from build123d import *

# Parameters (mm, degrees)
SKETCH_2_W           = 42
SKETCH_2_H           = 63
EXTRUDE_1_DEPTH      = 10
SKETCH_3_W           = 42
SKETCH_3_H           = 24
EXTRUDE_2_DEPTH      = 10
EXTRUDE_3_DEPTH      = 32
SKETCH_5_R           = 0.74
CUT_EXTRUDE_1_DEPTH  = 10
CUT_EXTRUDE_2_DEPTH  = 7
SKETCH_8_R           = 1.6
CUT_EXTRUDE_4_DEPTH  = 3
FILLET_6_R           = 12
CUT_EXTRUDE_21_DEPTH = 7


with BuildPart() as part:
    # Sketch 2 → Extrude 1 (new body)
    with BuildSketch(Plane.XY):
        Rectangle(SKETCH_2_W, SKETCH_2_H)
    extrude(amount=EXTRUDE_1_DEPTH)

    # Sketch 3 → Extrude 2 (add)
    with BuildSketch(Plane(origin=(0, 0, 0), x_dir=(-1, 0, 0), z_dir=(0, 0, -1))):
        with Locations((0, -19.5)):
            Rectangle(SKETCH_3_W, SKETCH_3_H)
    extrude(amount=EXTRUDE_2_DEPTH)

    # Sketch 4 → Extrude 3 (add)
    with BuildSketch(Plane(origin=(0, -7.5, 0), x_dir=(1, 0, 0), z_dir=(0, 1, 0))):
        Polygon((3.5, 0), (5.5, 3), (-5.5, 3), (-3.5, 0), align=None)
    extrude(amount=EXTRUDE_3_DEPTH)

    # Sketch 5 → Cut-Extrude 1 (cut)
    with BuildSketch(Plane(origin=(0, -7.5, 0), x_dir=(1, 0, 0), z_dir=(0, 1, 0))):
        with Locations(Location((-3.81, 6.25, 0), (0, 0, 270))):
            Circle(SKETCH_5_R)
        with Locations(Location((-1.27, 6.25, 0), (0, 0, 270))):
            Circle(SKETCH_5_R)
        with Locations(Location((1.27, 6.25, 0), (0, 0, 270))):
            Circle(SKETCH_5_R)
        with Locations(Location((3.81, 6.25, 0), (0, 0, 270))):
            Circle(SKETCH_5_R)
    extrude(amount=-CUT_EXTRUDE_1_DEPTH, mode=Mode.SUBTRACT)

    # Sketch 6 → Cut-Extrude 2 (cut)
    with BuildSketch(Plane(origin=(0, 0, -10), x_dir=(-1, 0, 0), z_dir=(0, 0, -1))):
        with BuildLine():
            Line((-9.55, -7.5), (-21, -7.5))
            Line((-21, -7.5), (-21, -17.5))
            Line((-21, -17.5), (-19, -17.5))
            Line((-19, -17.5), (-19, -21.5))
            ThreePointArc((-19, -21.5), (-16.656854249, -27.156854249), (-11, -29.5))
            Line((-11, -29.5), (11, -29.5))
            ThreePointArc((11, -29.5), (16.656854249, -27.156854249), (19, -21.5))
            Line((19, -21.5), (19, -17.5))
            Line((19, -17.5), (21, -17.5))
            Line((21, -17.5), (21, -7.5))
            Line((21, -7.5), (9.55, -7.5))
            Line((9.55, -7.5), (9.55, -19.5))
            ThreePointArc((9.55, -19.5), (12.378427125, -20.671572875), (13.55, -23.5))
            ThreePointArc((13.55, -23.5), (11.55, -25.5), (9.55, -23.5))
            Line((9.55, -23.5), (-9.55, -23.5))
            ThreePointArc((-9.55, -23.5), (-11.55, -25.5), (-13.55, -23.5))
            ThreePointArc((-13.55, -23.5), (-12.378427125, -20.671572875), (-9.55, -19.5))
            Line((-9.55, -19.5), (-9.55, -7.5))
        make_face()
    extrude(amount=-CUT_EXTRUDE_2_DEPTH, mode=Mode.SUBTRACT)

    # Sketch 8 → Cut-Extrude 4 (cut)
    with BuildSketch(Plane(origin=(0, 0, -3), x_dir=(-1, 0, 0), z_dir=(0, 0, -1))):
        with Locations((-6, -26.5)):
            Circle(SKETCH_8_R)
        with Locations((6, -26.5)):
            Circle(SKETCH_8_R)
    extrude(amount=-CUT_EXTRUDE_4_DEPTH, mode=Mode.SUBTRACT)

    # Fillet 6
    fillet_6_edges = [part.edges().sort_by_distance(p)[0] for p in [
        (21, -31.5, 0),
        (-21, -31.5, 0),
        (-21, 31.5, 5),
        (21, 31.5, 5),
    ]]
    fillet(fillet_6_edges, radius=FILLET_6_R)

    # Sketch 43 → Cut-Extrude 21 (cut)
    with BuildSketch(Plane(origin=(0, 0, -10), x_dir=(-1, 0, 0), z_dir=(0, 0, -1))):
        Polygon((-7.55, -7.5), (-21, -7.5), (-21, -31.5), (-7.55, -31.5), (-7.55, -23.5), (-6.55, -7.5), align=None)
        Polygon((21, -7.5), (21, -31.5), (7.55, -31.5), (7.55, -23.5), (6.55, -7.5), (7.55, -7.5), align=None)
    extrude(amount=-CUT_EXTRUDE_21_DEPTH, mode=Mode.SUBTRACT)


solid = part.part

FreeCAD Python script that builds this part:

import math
import FreeCAD as App
import Part
import Sketcher

V = App.Vector


def edges_at(feature, points):
    """Names of the edges that pass closest to the given points."""
    edges = feature.Shape.Edges
    near = lambda p: min(range(len(edges)), key=lambda i: edges[i].distToShape(Part.Vertex(*p))[0])
    return sorted({f"Edge{near(p) + 1}" for p in points})


def add_polygon(sketch, points):
    """Adds a closed chain of lines whose ends are joined by coincident constraints."""
    first, n = sketch.GeometryCount, len(points)
    for a, b in zip(points, points[1:] + points[:1]):
        sketch.addGeometry(Part.LineSegment(App.Vector(*a, 0), App.Vector(*b, 0)), False)
    for i in range(n):
        sketch.addConstraint(Sketcher.Constraint("Coincident", first + i, 2, first + (i + 1) % n, 1))

doc = App.newDocument("Part")
params = doc.addObject("Spreadsheet::Sheet", "Params")
for row, (alias, value) in enumerate([
    ("sketch1_width", "42 mm"),
    ("sketch1_height", "63 mm"),
    ("pad1_length", "10 mm"),
    ("sketch2_width", "42 mm"),
    ("sketch2_height", "24 mm"),
    ("pad2_length", "10 mm"),
    ("sketch3_width", "11 mm"),
    ("sketch3_width2", "7 mm"),
    ("pad3_length", "32 mm"),
    ("sketch4_diameter", "1.48 mm"),
    ("pocket1_length", "10 mm"),
    ("sketch5_radius", "8 mm"),
    ("sketch5_radius2", "4 mm"),
    ("sketch5_width", "2 mm"),
    ("sketch5_width2", "22 mm"),
    ("sketch5_height", "10 mm"),
    ("pocket2_length", "7 mm"),
    ("sketch6_diameter", "3.2 mm"),
    ("pocket3_length", "3 mm"),
    ("fillet_radius", "12 mm"),
    ("sketch7_height", "24 mm"),
    ("sketch7_height2", "8 mm"),
    ("sketch7_width", "13.45 mm"),
    ("pocket4_length", "7 mm"),
], start=1):
    params.set(f"A{row}", alias)
    params.set(f"B{row}", "=" + value)
    params.setAlias(f"B{row}", alias)

body = doc.addObject("PartDesign::Body", "Body")

sketch1 = body.newObject("Sketcher::SketchObject", "Sketch")
sketch1.AttachmentSupport = (doc.getObject("XY_Plane"), [""])
sketch1.MapMode = "FlatFace"
add_polygon(sketch1, [(-21, 32), (-21, -32), (21, -32), (21, 32)])
sketch1.addConstraint(Sketcher.Constraint("Vertical", 0))
sketch1.addConstraint(Sketcher.Constraint("Horizontal", 1))
sketch1.addConstraint(Sketcher.Constraint("Vertical", 2))
sketch1.addConstraint(Sketcher.Constraint("Horizontal", 3))
sketch1.addConstraint(Sketcher.Constraint("Symmetric", 0, 2, 2, 2, -1, 1))
sketch1.addConstraint(Sketcher.Constraint("DistanceX", 1, 1, 1, 2, 42.0))
sketch1.addConstraint(Sketcher.Constraint("DistanceY", 0, 2, 0, 1, 63.0))
sketch1.setExpression("Constraints[9]", "Params.sketch1_width")
sketch1.setExpression("Constraints[10]", "Params.sketch1_height")
pad1 = body.newObject("PartDesign::Pad", "Pad")
pad1.Profile = sketch1
pad1.setExpression("Length", "Params.pad1_length")

sketch2 = body.newObject("Sketcher::SketchObject", "Sketch001")
sketch2.AttachmentSupport = (doc.getObject("XY_Plane"), [""])
sketch2.MapMode = "FlatFace"
add_polygon(sketch2, [(21, -8), (21, -32), (-21, -32), (-21, -8)])
sketch2.addConstraint(Sketcher.Constraint("Vertical", 0))
sketch2.addConstraint(Sketcher.Constraint("Horizontal", 1))
sketch2.addConstraint(Sketcher.Constraint("Vertical", 2))
sketch2.addConstraint(Sketcher.Constraint("Horizontal", 3))
sketch2.addConstraint(Sketcher.Constraint("DistanceX", 1, 2, 1, 1, 42.0))
sketch2.addConstraint(Sketcher.Constraint("DistanceY", 0, 2, 0, 1, 24.0))
sketch2.addConstraint(Sketcher.Constraint("DistanceX", -1, 1, 0, 2, 21.0))
sketch2.addConstraint(Sketcher.Constraint("DistanceY", 0, 2, -1, 1, 31.5))
sketch2.setExpression("Constraints[8]", "Params.sketch2_width")
sketch2.setExpression("Constraints[9]", "Params.sketch2_height")
pad2 = body.newObject("PartDesign::Pad", "Pad001")
pad2.Profile = sketch2
pad2.setExpression("Length", "Params.pad2_length")
pad2.Reversed = True

sketch3 = body.newObject("Sketcher::SketchObject", "Sketch002")
sketch3.AttachmentSupport = (doc.getObject("XZ_Plane"), [""])
sketch3.MapMode = "FlatFace"
sketch3.AttachmentOffset = App.Placement(V(0, 0, 7.5), App.Rotation())
add_polygon(sketch3, [(3.5, 0), (5.5, -3), (-5.5, -3), (-3.5, 0)])
sketch3.addConstraint(Sketcher.Constraint("Horizontal", 1))
sketch3.addConstraint(Sketcher.Constraint("Horizontal", 3))
sketch3.addConstraint(Sketcher.Constraint("Symmetric", 2, 2, 3, 2, -1, 1))
sketch3.addConstraint(Sketcher.Constraint("Equal", 0, 2))
sketch3.addConstraint(Sketcher.Constraint("DistanceX", 1, 2, 1, 1, 11.0))
sketch3.addConstraint(Sketcher.Constraint("DistanceX", 3, 1, 3, 2, 7.0))
sketch3.addConstraint(Sketcher.Constraint("DistanceY", 0, 2, -1, 1, 3.0))
sketch3.setExpression("Constraints[8]", "Params.sketch3_width")
sketch3.setExpression("Constraints[9]", "Params.sketch3_width2")
pad3 = body.newObject("PartDesign::Pad", "Pad002")
pad3.Profile = sketch3
pad3.setExpression("Length", "Params.pad3_length")
pad3.Reversed = True

sketch4 = body.newObject("Sketcher::SketchObject", "Sketch003")
sketch4.AttachmentSupport = (doc.getObject("XZ_Plane"), [""])
sketch4.MapMode = "FlatFace"
sketch4.AttachmentOffset = App.Placement(V(0, 0, 7.5), App.Rotation())
sketch4.addGeometry(Part.Circle(V(-3.8, -6.2, 0), V(0, 0, 1), 0.7), False)
sketch4.addGeometry(Part.Circle(V(-1.3, -6.2, 0), V(0, 0, 1), 0.7), False)
sketch4.addGeometry(Part.Circle(V(1.3, -6.2, 0), V(0, 0, 1), 0.7), False)
sketch4.addGeometry(Part.Circle(V(3.8, -6.2, 0), V(0, 0, 1), 0.7), False)
sketch4.addConstraint(Sketcher.Constraint("Equal", 0, 1))
sketch4.addConstraint(Sketcher.Constraint("Equal", 1, 2))
sketch4.addConstraint(Sketcher.Constraint("Equal", 2, 3))
sketch4.addConstraint(Sketcher.Constraint("Symmetric", 1, 3, 2, 3, -2))
sketch4.addConstraint(Sketcher.Constraint("Symmetric", 0, 3, 3, 3, -2))
sketch4.addConstraint(Sketcher.Constraint("Horizontal", 0, 3, 1, 3))
sketch4.addConstraint(Sketcher.Constraint("Diameter", 0, 1.48))
sketch4.addConstraint(Sketcher.Constraint("DistanceX", 0, 3, -1, 1, 3.81))
sketch4.addConstraint(Sketcher.Constraint("DistanceY", 0, 3, -1, 1, 6.25))
sketch4.addConstraint(Sketcher.Constraint("DistanceX", 1, 3, -1, 1, 1.27))
sketch4.setExpression("Constraints[6]", "Params.sketch4_diameter")
pocket1 = body.newObject("PartDesign::Pocket", "Pocket")
pocket1.Profile = sketch4
pocket1.setExpression("Length", "Params.pocket1_length")
pocket1.Reversed = True

sketch5 = body.newObject("Sketcher::SketchObject", "Sketch004")
sketch5.AttachmentSupport = (doc.getObject("XY_Plane"), [""])
sketch5.MapMode = "FlatFace"
sketch5.AttachmentOffset = App.Placement(V(0, 0, -10), App.Rotation())
sketch5.addGeometry(Part.LineSegment(V(9.6, -7.5, 0), V(21, -7.5, 0)), False)
sketch5.addGeometry(Part.LineSegment(V(21, -7.5, 0), V(21, -17.5, 0)), False)
sketch5.addGeometry(Part.LineSegment(V(21, -17.5, 0), V(19, -17.5, 0)), False)
sketch5.addGeometry(Part.LineSegment(V(19, -17.5, 0), V(19, -21.5, 0)), False)
sketch5.addGeometry(Part.ArcOfCircle(Part.Circle(V(11, -21.5, 0), V(0, 0, 1), 8), math.radians(-90), math.radians(0)), False)
sketch5.addGeometry(Part.LineSegment(V(11, -29.5, 0), V(-11, -29.5, 0)), False)
sketch5.addGeometry(Part.ArcOfCircle(Part.Circle(V(-11, -21.5, 0), V(0, 0, 1), 8), math.radians(-180), math.radians(-90)), False)
sketch5.addGeometry(Part.LineSegment(V(-19, -21.5, 0), V(-19, -17.5, 0)), False)
sketch5.addGeometry(Part.LineSegment(V(-19, -17.5, 0), V(-21, -17.5, 0)), False)
sketch5.addGeometry(Part.LineSegment(V(-21, -17.5, 0), V(-21, -7.5, 0)), False)
sketch5.addGeometry(Part.LineSegment(V(-21, -7.5, 0), V(-9.6, -7.5, 0)), False)
sketch5.addGeometry(Part.LineSegment(V(-9.6, -7.5, 0), V(-9.6, -19.5, 0)), False)
sketch5.addGeometry(Part.ArcOfCircle(Part.Circle(V(-9.6, -23.5, 0), V(0, 0, 1), 4), math.radians(90), math.radians(180)), False)
sketch5.addGeometry(Part.ArcOfCircle(Part.Circle(V(-11.6, -23.5, 0), V(0, 0, 1), 2), math.radians(180), math.radians(360)), False)
sketch5.addGeometry(Part.LineSegment(V(-9.6, -23.5, 0), V(9.6, -23.5, 0)), False)
sketch5.addGeometry(Part.ArcOfCircle(Part.Circle(V(11.6, -23.5, 0), V(0, 0, 1), 2), math.radians(180), math.radians(360)), False)
sketch5.addGeometry(Part.ArcOfCircle(Part.Circle(V(9.6, -23.5, 0), V(0, 0, 1), 4), math.radians(0), math.radians(90)), False)
sketch5.addGeometry(Part.LineSegment(V(9.6, -19.5, 0), V(9.6, -7.5, 0)), False)
sketch5.addConstraint(Sketcher.Constraint("Coincident", 0, 2, 1, 1))
sketch5.addConstraint(Sketcher.Constraint("Coincident", 1, 2, 2, 1))
sketch5.addConstraint(Sketcher.Constraint("Coincident", 2, 2, 3, 1))
sketch5.addConstraint(Sketcher.Constraint("Tangent", 3, 2, 4, 2))
sketch5.addConstraint(Sketcher.Constraint("Tangent", 4, 1, 5, 1))
sketch5.addConstraint(Sketcher.Constraint("Tangent", 5, 2, 6, 2))
sketch5.addConstraint(Sketcher.Constraint("Tangent", 6, 1, 7, 1))
sketch5.addConstraint(Sketcher.Constraint("Coincident", 7, 2, 8, 1))
sketch5.addConstraint(Sketcher.Constraint("Coincident", 8, 2, 9, 1))
sketch5.addConstraint(Sketcher.Constraint("Coincident", 9, 2, 10, 1))
sketch5.addConstraint(Sketcher.Constraint("Coincident", 10, 2, 11, 1))
sketch5.addConstraint(Sketcher.Constraint("Coincident", 11, 2, 12, 1))
sketch5.addConstraint(Sketcher.Constraint("Tangent", 12, 2, 13, 1))
sketch5.addConstraint(Sketcher.Constraint("Coincident", 13, 2, 14, 1))
sketch5.addConstraint(Sketcher.Constraint("Coincident", 14, 2, 15, 1))
sketch5.addConstraint(Sketcher.Constraint("Tangent", 15, 2, 16, 1))
sketch5.addConstraint(Sketcher.Constraint("Coincident", 16, 2, 17, 1))
sketch5.addConstraint(Sketcher.Constraint("Coincident", 17, 2, 0, 1))
sketch5.addConstraint(Sketcher.Constraint("Horizontal", 0))
sketch5.addConstraint(Sketcher.Constraint("Vertical", 1))
sketch5.addConstraint(Sketcher.Constraint("Horizontal", 2))
sketch5.addConstraint(Sketcher.Constraint("Vertical", 3))
sketch5.addConstraint(Sketcher.Constraint("Horizontal", 5))
sketch5.addConstraint(Sketcher.Constraint("Vertical", 7))
sketch5.addConstraint(Sketcher.Constraint("Horizontal", 8))
sketch5.addConstraint(Sketcher.Constraint("Vertical", 9))
sketch5.addConstraint(Sketcher.Constraint("Horizontal", 10))
sketch5.addConstraint(Sketcher.Constraint("Vertical", 11))
sketch5.addConstraint(Sketcher.Constraint("Horizontal", 14))
sketch5.addConstraint(Sketcher.Constraint("Vertical", 17))
sketch5.addConstraint(Sketcher.Constraint("Coincident", 13, 2, 12, 3))
sketch5.addConstraint(Sketcher.Constraint("Coincident", 14, 2, 16, 3))
sketch5.addConstraint(Sketcher.Constraint("Equal", 4, 6))
sketch5.addConstraint(Sketcher.Constraint("Equal", 13, 15))
sketch5.addConstraint(Sketcher.Constraint("Symmetric", 13, 3, 15, 3, -2))
sketch5.addConstraint(Sketcher.Constraint("Symmetric", 2, 2, 7, 2, -2))
sketch5.addConstraint(Sketcher.Constraint("Symmetric", 0, 2, 9, 2, -2))
sketch5.addConstraint(Sketcher.Constraint("Horizontal", 12, 3, 13, 3))
sketch5.addConstraint(Sketcher.Constraint("Vertical", 12, 3, 10, 2))
sketch5.addConstraint(Sketcher.Constraint("Vertical", 14, 2, 16, 2))
sketch5.addConstraint(Sketcher.Constraint("Radius", 4, 8.0))
sketch5.addConstraint(Sketcher.Constraint("Radius", 12, 4.0))
sketch5.addConstraint(Sketcher.Constraint("DistanceX", 2, 2, 2, 1, 2.0))
sketch5.addConstraint(Sketcher.Constraint("DistanceX", 5, 2, 5, 1, 22.0))
sketch5.addConstraint(Sketcher.Constraint("DistanceY", 1, 2, 1, 1, 10.0))
sketch5.addConstraint(Sketcher.Constraint("DistanceY", 3, 2, 3, 1, 4.0))
sketch5.addConstraint(Sketcher.Constraint("DistanceY", 11, 2, 11, 1, 12.0))
sketch5.addConstraint(Sketcher.Constraint("DistanceX", 14, 1, 14, 2, 19.1))
sketch5.addConstraint(Sketcher.Constraint("DistanceY", 4, 3, -1, 1, 21.5))
sketch5.setExpression("Constraints[40]", "Params.sketch5_radius")
sketch5.setExpression("Constraints[41]", "Params.sketch5_radius2")
sketch5.setExpression("Constraints[42]", "Params.sketch5_width")
sketch5.setExpression("Constraints[43]", "Params.sketch5_width2")
sketch5.setExpression("Constraints[44]", "Params.sketch5_height")
pocket2 = body.newObject("PartDesign::Pocket", "Pocket001")
pocket2.Profile = sketch5
pocket2.setExpression("Length", "Params.pocket2_length")
pocket2.Reversed = True

sketch6 = body.newObject("Sketcher::SketchObject", "Sketch005")
sketch6.AttachmentSupport = (doc.getObject("XY_Plane"), [""])
sketch6.MapMode = "FlatFace"
sketch6.AttachmentOffset = App.Placement(V(0, 0, -3), App.Rotation())
sketch6.addGeometry(Part.Circle(V(6, -26.5, 0), V(0, 0, 1), 1.6), False)
sketch6.addGeometry(Part.Circle(V(-6, -26.5, 0), V(0, 0, 1), 1.6), False)
sketch6.addConstraint(Sketcher.Constraint("Equal", 0, 1))
sketch6.addConstraint(Sketcher.Constraint("Symmetric", 0, 3, 1, 3, -2))
sketch6.addConstraint(Sketcher.Constraint("Diameter", 0, 3.2))
sketch6.addConstraint(Sketcher.Constraint("DistanceX", -1, 1, 0, 3, 6.0))
sketch6.addConstraint(Sketcher.Constraint("DistanceY", 0, 3, -1, 1, 26.5))
sketch6.setExpression("Constraints[2]", "Params.sketch6_diameter")
pocket3 = body.newObject("PartDesign::Pocket", "Pocket002")
pocket3.Profile = sketch6
pocket3.setExpression("Length", "Params.pocket3_length")
pocket3.Reversed = True
doc.recompute()

fillet = body.newObject("PartDesign::Fillet", "Fillet")
fillet.Base = (pocket3, edges_at(pocket3, [
    (21, -31.5, 0),
    (-21, -31.5, 0),
    (-21, 31.5, 5),
    (21, 31.5, 5),
]))
fillet.setExpression("Radius", "Params.fillet_radius")

sketch7 = body.newObject("Sketcher::SketchObject", "Sketch006")
sketch7.AttachmentSupport = (doc.getObject("XY_Plane"), [""])
sketch7.MapMode = "FlatFace"
sketch7.AttachmentOffset = App.Placement(V(0, 0, -10), App.Rotation())
add_polygon(sketch7, [(21, -8), (21, -32), (8, -32), (8, -24), (7, -8)])
add_polygon(sketch7, [(-21, -32), (-21, -8), (-7, -8), (-8, -24), (-8, -32)])
sketch7.addConstraint(Sketcher.Constraint("Vertical", 0))
sketch7.addConstraint(Sketcher.Constraint("Horizontal", 1))
sketch7.addConstraint(Sketcher.Constraint("Vertical", 2))
sketch7.addConstraint(Sketcher.Constraint("Horizontal", 4))
sketch7.addConstraint(Sketcher.Constraint("Vertical", 5))
sketch7.addConstraint(Sketcher.Constraint("Horizontal", 6))
sketch7.addConstraint(Sketcher.Constraint("Vertical", 8))
sketch7.addConstraint(Sketcher.Constraint("Horizontal", 9))
sketch7.addConstraint(Sketcher.Constraint("Symmetric", 4, 2, 5, 2, -2))
sketch7.addConstraint(Sketcher.Constraint("Symmetric", 2, 2, 7, 2, -2))
sketch7.addConstraint(Sketcher.Constraint("Horizontal", 1, 2, 8, 2))
sketch7.addConstraint(Sketcher.Constraint("Equal", 4, 6))
sketch7.addConstraint(Sketcher.Constraint("DistanceY", 0, 2, 0, 1, 24.0))
sketch7.addConstraint(Sketcher.Constraint("DistanceY", 2, 1, 2, 2, 8.0))
sketch7.addConstraint(Sketcher.Constraint("DistanceX", -1, 1, 0, 2, 21.0))
sketch7.addConstraint(Sketcher.Constraint("DistanceX", 3, 2, 2, 2, 1.0))
sketch7.addConstraint(Sketcher.Constraint("DistanceX", 1, 2, 1, 1, 13.45))
sketch7.addConstraint(Sketcher.Constraint("DistanceY", 0, 2, -1, 1, 31.5))
sketch7.setExpression("Constraints[22]", "Params.sketch7_height")
sketch7.setExpression("Constraints[23]", "Params.sketch7_height2")
sketch7.setExpression("Constraints[26]", "Params.sketch7_width")
pocket4 = body.newObject("PartDesign::Pocket", "Pocket003")
pocket4.Profile = sketch7
pocket4.setExpression("Length", "Params.pocket4_length")
pocket4.Reversed = True

doc.recompute()
